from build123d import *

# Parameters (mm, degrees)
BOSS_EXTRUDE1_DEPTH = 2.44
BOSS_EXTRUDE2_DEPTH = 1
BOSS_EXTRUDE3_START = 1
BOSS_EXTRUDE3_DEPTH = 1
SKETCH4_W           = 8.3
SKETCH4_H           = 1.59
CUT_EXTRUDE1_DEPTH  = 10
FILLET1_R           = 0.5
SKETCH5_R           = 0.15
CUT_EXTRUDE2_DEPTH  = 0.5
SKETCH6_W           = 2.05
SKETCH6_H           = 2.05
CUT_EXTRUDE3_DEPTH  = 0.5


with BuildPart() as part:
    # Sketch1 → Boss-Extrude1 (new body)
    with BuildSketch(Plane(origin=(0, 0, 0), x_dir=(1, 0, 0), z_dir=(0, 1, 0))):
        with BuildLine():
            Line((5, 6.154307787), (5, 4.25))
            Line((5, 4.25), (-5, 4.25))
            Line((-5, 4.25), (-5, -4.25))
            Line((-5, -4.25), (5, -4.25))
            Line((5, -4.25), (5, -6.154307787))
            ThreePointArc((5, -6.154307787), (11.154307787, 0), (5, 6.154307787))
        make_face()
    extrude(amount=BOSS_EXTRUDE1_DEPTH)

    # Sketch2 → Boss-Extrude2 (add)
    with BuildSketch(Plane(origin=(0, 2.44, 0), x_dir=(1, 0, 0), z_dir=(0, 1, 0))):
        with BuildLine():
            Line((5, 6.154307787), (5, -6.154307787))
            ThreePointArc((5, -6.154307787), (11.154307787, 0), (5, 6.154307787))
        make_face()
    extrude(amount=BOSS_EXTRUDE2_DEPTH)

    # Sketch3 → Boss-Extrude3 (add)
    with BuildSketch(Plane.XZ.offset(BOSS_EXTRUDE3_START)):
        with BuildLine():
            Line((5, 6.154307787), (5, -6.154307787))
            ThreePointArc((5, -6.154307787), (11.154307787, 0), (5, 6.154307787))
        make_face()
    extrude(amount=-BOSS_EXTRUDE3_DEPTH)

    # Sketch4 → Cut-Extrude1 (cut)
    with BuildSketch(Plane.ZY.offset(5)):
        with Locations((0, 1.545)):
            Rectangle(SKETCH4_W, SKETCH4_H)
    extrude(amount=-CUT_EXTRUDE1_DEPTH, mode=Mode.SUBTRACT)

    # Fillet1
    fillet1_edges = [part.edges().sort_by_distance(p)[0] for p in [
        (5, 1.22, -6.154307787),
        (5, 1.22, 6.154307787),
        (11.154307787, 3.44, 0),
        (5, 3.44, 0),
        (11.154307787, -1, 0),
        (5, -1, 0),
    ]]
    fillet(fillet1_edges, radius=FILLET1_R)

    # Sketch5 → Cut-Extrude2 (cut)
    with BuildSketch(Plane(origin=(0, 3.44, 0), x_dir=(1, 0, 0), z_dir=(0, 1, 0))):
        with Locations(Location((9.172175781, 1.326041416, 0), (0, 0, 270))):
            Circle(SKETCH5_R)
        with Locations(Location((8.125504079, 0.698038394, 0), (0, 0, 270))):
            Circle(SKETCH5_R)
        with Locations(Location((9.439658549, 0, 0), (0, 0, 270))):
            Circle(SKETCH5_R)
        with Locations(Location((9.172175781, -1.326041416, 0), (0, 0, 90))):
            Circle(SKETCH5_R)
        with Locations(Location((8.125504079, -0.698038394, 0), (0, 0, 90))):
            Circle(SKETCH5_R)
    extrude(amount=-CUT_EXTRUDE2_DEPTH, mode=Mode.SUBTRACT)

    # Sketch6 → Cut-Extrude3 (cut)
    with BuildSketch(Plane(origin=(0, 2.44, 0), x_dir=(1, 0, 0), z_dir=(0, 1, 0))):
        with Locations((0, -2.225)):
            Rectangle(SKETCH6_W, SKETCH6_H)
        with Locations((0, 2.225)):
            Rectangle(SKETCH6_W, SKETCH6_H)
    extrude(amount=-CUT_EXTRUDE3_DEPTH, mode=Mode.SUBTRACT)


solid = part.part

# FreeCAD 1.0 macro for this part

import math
import FreeCAD as App
import Part
import Sketcher
from FreeCAD import Vector


def edges_at(feature, points):
    """Names of the edges that pass closest to the given points."""
    edges = feature.Shape.Edges
    near = lambda p: min(range(len(edges)), key=lambda i: edges[i].distToShape(Part.Vertex(*p))[0])
    return sorted({f"Edge{near(p) + 1}" for p in points})


def add_polygon(sketch, points):
    """Adds a closed chain of lines whose ends are joined by coincident constraints."""
    first, n = sketch.GeometryCount, len(points)
    for a, b in zip(points, points[1:] + points[:1]):
        sketch.addGeometry(Part.LineSegment(App.Vector(*a, 0), App.Vector(*b, 0)), False)
    for i in range(n):
        sketch.addConstraint(Sketcher.Constraint("Coincident", first + i, 2, first + (i + 1) % n, 1))

doc = App.newDocument("Part")
body = doc.addObject("PartDesign::Body", "Body")

# Sketch on XZ plane
sketch1 = body.newObject("Sketcher::SketchObject", "Sketch")
sketch1.AttachmentSupport = (doc.getObject("XZ_Plane"), [""])
sketch1.MapMode = "FlatFace"
sketch1.addGeometry(Part.LineSegment(Vector(5, -6.154308, 0), Vector(5, -4.25, 0)), False)
sketch1.addGeometry(Part.LineSegment(Vector(5, -4.25, 0), Vector(-5, -4.25, 0)), False)
sketch1.addGeometry(Part.LineSegment(Vector(-5, -4.25, 0), Vector(-5, 4.25, 0)), False)
sketch1.addGeometry(Part.LineSegment(Vector(-5, 4.25, 0), Vector(5, 4.25, 0)), False)
sketch1.addGeometry(Part.LineSegment(Vector(5, 4.25, 0), Vector(5, 6.154308, 0)), False)
sketch1.addGeometry(Part.ArcOfCircle(Part.Circle(Vector(5, 0, 0), Vector(0, 0, 1), 6.154308), math.radians(-90), math.radians(90)), False)
sketch1.addConstraint(Sketcher.Constraint("Coincident", 0, 2, 1, 1))
sketch1.addConstraint(Sketcher.Constraint("Coincident", 1, 2, 2, 1))
sketch1.addConstraint(Sketcher.Constraint("Coincident", 2, 2, 3, 1))
sketch1.addConstraint(Sketcher.Constraint("Coincident", 3, 2, 4, 1))
sketch1.addConstraint(Sketcher.Constraint("Coincident", 4, 2, 5, 2))
sketch1.addConstraint(Sketcher.Constraint("Coincident", 5, 1, 0, 1))
sketch1.addConstraint(Sketcher.Constraint("Vertical", 0))
sketch1.addConstraint(Sketcher.Constraint("Horizontal", 1))
sketch1.addConstraint(Sketcher.Constraint("Vertical", 2))
sketch1.addConstraint(Sketcher.Constraint("Horizontal", 3))
sketch1.addConstraint(Sketcher.Constraint("Vertical", 4))
sketch1.addConstraint(Sketcher.Constraint("Symmetric", 0, 2, 2, 2, -1, 1))
sketch1.addConstraint(Sketcher.Constraint("Symmetric", 4, 2, 5, 1, -1))
sketch1.addConstraint(Sketcher.Constraint("Vertical", 5, 3, 0, 2))
sketch1.addConstraint(Sketcher.Constraint("DistanceX", 1, 2, 1, 1, 10.0))
sketch1.addConstraint(Sketcher.Constraint("DistanceY", 2, 1, 2, 2, 8.5))
sketch1.addConstraint(Sketcher.Constraint("Radius", 5, 6.154308))
pad1 = body.newObject("PartDesign::Pad", "Pad")
pad1.Profile = sketch1
pad1.Length = 2.44
pad1.Reversed = True

# Sketch on XZ plane
sketch2 = body.newObject("Sketcher::SketchObject", "Sketch001")
sketch2.AttachmentSupport = (doc.getObject("XZ_Plane"), [""])
sketch2.MapMode = "FlatFace"
sketch2.AttachmentOffset = App.Placement(Vector(0, 0, -2.44), App.Rotation())
sketch2.addGeometry(Part.LineSegment(Vector(5, -6.154308, 0), Vector(5, 6.154308, 0)), False)
sketch2.addGeometry(Part.ArcOfCircle(Part.Circle(Vector(5, 0, 0), Vector(0, 0, 1), 6.154308), math.radians(-90), math.radians(90)), False)
sketch2.addConstraint(Sketcher.Constraint("Coincident", 0, 1, 1, 1))
sketch2.addConstraint(Sketcher.Constraint("Coincident", 1, 2, 0, 2))
sketch2.addConstraint(Sketcher.Constraint("Vertical", 0))
sketch2.addConstraint(Sketcher.Constraint("PointOnObject", 1, 3, -1))
sketch2.addConstraint(Sketcher.Constraint("Vertical", 1, 3, 0, 1))
sketch2.addConstraint(Sketcher.Constraint("DistanceX", -1, 1, 1, 3, 5.0))
sketch2.addConstraint(Sketcher.Constraint("Radius", 1, 6.154308))
pad2 = body.newObject("PartDesign::Pad", "Pad001")
pad2.Profile = sketch2
pad2.Length = 1
pad2.Reversed = True

# Sketch on XZ plane
sketch3 = body.newObject("Sketcher::SketchObject", "Sketch002")
sketch3.AttachmentSupport = (doc.getObject("XZ_Plane"), [""])
sketch3.MapMode = "FlatFace"
sketch3.AttachmentOffset = App.Placement(Vector(0, 0, 1), App.Rotation())
sketch3.addGeometry(Part.LineSegment(Vector(5, 6.154308, 0), Vector(5, -6.154308, 0)), False)
sketch3.addGeometry(Part.ArcOfCircle(Part.Circle(Vector(5, 0, 0), Vector(0, 0, 1), 6.154308), math.radians(-90), math.radians(90)), False)
sketch3.addConstraint(Sketcher.Constraint("Coincident", 0, 1, 1, 2))
sketch3.addConstraint(Sketcher.Constraint("Coincident", 1, 1, 0, 2))
sketch3.addConstraint(Sketcher.Constraint("Vertical", 0))
sketch3.addConstraint(Sketcher.Constraint("PointOnObject", 1, 3, -1))
sketch3.addConstraint(Sketcher.Constraint("Vertical", 1, 3, 0, 1))
sketch3.addConstraint(Sketcher.Constraint("DistanceX", -1, 1, 1, 3, 5.0))
sketch3.addConstraint(Sketcher.Constraint("Radius", 1, 6.154308))
pad3 = body.newObject("PartDesign::Pad", "Pad002")
pad3.Profile = sketch3
pad3.Length = 1
pad3.Reversed = True

# Sketch on YZ plane
sketch4 = body.newObject("Sketcher::SketchObject", "Sketch003")
sketch4.AttachmentSupport = (doc.getObject("YZ_Plane"), [""])
sketch4.MapMode = "FlatFace"
sketch4.AttachmentOffset = App.Placement(Vector(0, 0, -5), App.Rotation())
add_polygon(sketch4, [(2.34, -4.15), (0.75, -4.15), (0.75, 4.15), (2.34, 4.15)])  # lines 0-3
sketch4.addConstraint(Sketcher.Constraint("Horizontal", 0))
sketch4.addConstraint(Sketcher.Constraint("Vertical", 1))
sketch4.addConstraint(Sketcher.Constraint("Horizontal", 2))
sketch4.addConstraint(Sketcher.Constraint("Vertical", 3))
sketch4.addConstraint(Sketcher.Constraint("DistanceY", 1, 1, 1, 2, 8.3))
sketch4.addConstraint(Sketcher.Constraint("DistanceX", 0, 2, 0, 1, 1.59))
sketch4.addConstraint(Sketcher.Constraint("DistanceX", -1, 1, 0, 2, 0.75))
sketch4.addConstraint(Sketcher.Constraint("DistanceY", 0, 2, -1, 1, 4.15))
pocket1 = body.newObject("PartDesign::Pocket", "Pocket")
pocket1.Profile = sketch4
pocket1.Length = 10
pocket1.Reversed = True
doc.recompute()

fillet = body.newObject("PartDesign::Fillet", "Fillet")
fillet.Base = (pocket1, edges_at(pocket1, [
    (5, 1.22, -6.154),
    (5, 1.22, 6.154),
    (11.154, 3.44, 0),
    (5, 3.44, 0),
    (11.154, -1, 0),
    (5, -1, 0),
]))
fillet.Radius = 0.5

# Sketch on XZ plane
sketch5 = body.newObject("Sketcher::SketchObject", "Sketch004")
sketch5.AttachmentSupport = (doc.getObject("XZ_Plane"), [""])
sketch5.MapMode = "FlatFace"
sketch5.AttachmentOffset = App.Placement(Vector(0, 0, -3.44), App.Rotation())
sketch5.addGeometry(Part.Circle(Vector(9.172176, -1.326041, 0), Vector(0, 0, 1), 0.15), False)
sketch5.addGeometry(Part.Circle(Vector(8.125504, -0.698038, 0), Vector(0, 0, 1), 0.15), False)
sketch5.addGeometry(Part.Circle(Vector(9.439659, 0, 0), Vector(0, 0, 1), 0.15), False)
sketch5.addGeometry(Part.Circle(Vector(9.172176, 1.326041, 0), Vector(0, 0, 1), 0.15), False)
sketch5.addGeometry(Part.Circle(Vector(8.125504, 0.698038, 0), Vector(0, 0, 1), 0.15), False)
sketch5.addConstraint(Sketcher.Constraint("Equal", 0, 1))
sketch5.addConstraint(Sketcher.Constraint("Equal", 1, 2))
sketch5.addConstraint(Sketcher.Constraint("Equal", 2, 3))
sketch5.addConstraint(Sketcher.Constraint("Equal", 3, 4))
sketch5.addConstraint(Sketcher.Constraint("Symmetric", 0, 3, 3, 3, -1))
sketch5.addConstraint(Sketcher.Constraint("Symmetric", 1, 3, 4, 3, -1))
sketch5.addConstraint(Sketcher.Constraint("PointOnObject", 2, 3, -1))
sketch5.addConstraint(Sketcher.Constraint("Diameter", 0, 0.3))
sketch5.addConstraint(Sketcher.Constraint("DistanceY", 0, 3, -1, 1, 1.326041))
sketch5.addConstraint(Sketcher.Constraint("DistanceY", 1, 3, -1, 1, 0.698038))
sketch5.addConstraint(Sketcher.Constraint("DistanceX", -1, 1, 2, 3, 9.439659))
sketch5.addConstraint(Sketcher.Constraint("DistanceX", 1, 3, 0, 3, 1.046672))
sketch5.addConstraint(Sketcher.Constraint("DistanceX", -1, 1, 0, 3, 9.172176))
pocket2 = body.newObject("PartDesign::Pocket", "Pocket001")
pocket2.Profile = sketch5
pocket2.Length = 0.5
pocket2.Reversed = True

# Sketch on XZ plane
sketch6 = body.newObject("Sketcher::SketchObject", "Sketch005")
sketch6.AttachmentSupport = (doc.getObject("XZ_Plane"), [""])
sketch6.MapMode = "FlatFace"
sketch6.AttachmentOffset = App.Placement(Vector(0, 0, -2.44), App.Rotation())
add_polygon(sketch6, [(-1.025, 1.2), (-1.025, 3.25), (1.025, 3.25), (1.025, 1.2)])  # lines 0-3
add_polygon(sketch6, [(-1.025, -3.25), (-1.025, -1.2), (1.025, -1.2), (1.025, -3.25)])  # lines 4-7
sketch6.addConstraint(Sketcher.Constraint("Vertical", 0))
sketch6.addConstraint(Sketcher.Constraint("Horizontal", 1))
sketch6.addConstraint(Sketcher.Constraint("Vertical", 2))
sketch6.addConstraint(Sketcher.Constraint("Horizontal", 3))
sketch6.addConstraint(Sketcher.Constraint("Vertical", 4))
sketch6.addConstraint(Sketcher.Constraint("Horizontal", 5))
sketch6.addConstraint(Sketcher.Constraint("Vertical", 6))
sketch6.addConstraint(Sketcher.Constraint("Horizontal", 7))
sketch6.addConstraint(Sketcher.Constraint("Symmetric", 2, 2, 4, 2, -1, 1))
sketch6.addConstraint(Sketcher.Constraint("Symmetric", 0, 2, 6, 2, -1, 1))
sketch6.addConstraint(Sketcher.Constraint("Vertical", 3, 2, 4, 2))
sketch6.addConstraint(Sketcher.Constraint("Equal", 7, 0))
sketch6.addConstraint(Sketcher.Constraint("DistanceX", 1, 1, 1, 2, 2.05))
sketch6.addConstraint(Sketcher.Constraint("DistanceY", -1, 1, 2, 2, 1.2))
pocket3 = body.newObject("PartDesign::Pocket", "Pocket002")
pocket3.Profile = sketch6
pocket3.Length = 0.5
pocket3.Reversed = True

doc.recompute()
